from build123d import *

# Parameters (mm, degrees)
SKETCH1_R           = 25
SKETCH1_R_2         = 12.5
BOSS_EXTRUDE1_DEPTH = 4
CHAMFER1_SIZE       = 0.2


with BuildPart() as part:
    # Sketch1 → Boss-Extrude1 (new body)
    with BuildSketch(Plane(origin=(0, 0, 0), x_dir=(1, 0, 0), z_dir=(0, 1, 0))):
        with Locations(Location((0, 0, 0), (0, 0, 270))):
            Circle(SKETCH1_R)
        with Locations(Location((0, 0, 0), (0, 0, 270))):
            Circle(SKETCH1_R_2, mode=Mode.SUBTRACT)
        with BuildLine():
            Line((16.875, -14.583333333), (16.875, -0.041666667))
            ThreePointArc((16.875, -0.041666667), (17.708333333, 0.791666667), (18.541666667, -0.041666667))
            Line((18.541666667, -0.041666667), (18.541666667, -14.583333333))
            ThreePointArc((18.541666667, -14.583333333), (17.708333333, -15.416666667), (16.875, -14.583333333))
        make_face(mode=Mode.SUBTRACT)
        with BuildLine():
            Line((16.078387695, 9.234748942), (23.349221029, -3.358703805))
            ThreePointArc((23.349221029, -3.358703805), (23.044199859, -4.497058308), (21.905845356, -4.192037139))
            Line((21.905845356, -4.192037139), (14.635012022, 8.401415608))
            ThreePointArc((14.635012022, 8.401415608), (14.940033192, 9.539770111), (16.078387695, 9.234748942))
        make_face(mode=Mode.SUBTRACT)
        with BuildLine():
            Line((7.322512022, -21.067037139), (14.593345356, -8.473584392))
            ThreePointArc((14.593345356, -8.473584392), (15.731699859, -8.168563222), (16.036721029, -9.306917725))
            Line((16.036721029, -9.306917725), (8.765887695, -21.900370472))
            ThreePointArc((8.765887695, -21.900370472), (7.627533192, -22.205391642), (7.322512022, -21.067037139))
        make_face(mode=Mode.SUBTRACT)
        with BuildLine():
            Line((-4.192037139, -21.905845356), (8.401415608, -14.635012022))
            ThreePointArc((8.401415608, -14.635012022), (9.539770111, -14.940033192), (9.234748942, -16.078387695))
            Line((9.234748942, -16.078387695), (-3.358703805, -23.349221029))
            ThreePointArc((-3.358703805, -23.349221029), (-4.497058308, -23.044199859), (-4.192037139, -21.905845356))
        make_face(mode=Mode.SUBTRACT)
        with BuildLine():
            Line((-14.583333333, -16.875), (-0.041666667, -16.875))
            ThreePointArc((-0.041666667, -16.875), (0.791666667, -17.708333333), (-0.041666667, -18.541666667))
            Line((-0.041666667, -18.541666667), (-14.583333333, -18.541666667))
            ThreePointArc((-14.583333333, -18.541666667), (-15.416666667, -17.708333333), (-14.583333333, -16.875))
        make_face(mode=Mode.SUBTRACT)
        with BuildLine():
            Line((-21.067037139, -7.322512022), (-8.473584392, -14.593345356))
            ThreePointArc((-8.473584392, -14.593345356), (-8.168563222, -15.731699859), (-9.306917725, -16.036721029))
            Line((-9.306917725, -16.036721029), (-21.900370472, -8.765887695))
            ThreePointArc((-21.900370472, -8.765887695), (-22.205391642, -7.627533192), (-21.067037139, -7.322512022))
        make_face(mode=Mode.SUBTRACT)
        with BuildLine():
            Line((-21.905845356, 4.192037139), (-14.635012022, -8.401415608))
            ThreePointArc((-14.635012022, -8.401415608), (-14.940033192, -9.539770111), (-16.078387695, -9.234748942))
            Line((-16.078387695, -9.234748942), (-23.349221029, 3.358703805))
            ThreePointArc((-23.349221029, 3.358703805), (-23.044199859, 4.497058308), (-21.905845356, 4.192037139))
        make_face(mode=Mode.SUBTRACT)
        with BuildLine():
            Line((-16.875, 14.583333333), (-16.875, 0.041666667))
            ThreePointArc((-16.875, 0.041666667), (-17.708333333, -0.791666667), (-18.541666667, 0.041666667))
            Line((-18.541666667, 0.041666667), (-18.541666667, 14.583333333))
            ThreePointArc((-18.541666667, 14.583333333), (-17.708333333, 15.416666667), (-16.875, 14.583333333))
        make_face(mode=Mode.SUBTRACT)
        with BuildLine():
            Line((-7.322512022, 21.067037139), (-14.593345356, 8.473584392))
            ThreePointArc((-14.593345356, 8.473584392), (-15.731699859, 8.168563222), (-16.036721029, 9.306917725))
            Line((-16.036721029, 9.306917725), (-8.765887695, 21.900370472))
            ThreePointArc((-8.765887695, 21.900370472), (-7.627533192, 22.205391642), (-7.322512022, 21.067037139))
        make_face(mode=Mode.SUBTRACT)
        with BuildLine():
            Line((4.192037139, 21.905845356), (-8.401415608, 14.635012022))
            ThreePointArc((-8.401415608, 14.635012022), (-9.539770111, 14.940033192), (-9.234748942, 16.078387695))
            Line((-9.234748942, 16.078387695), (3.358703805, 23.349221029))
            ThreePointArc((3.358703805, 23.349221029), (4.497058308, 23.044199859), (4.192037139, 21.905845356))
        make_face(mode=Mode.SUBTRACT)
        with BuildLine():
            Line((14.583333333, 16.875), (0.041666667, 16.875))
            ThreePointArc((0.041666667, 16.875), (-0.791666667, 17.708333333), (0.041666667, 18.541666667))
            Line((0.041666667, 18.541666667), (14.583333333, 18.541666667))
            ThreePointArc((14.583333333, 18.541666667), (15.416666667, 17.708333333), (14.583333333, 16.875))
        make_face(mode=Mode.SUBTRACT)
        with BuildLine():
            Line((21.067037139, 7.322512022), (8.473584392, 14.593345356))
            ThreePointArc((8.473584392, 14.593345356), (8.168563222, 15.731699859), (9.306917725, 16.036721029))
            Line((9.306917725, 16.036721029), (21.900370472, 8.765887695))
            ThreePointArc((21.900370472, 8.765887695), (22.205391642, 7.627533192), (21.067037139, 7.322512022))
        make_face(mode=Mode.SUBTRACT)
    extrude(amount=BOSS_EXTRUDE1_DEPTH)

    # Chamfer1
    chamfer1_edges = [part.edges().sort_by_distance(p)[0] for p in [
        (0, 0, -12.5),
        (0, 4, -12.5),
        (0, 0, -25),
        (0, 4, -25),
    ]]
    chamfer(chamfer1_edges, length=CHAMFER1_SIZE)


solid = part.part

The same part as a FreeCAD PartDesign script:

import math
import FreeCAD as App
import Part
import Sketcher

V = App.Vector
Q = App.Units.Quantity


def edges_at(feature, points):
    """Names of the edges that pass closest to the given points."""
    edges = feature.Shape.Edges
    near = lambda p: min(range(len(edges)), key=lambda i: edges[i].distToShape(Part.Vertex(*p))[0])
    return sorted({f"Edge{near(p) + 1}" for p in points})

doc = App.newDocument("Part")
body = doc.addObject("PartDesign::Body", "Body")

# Sketch on XZ plane
sketch1 = doc.addObject("Sketcher::SketchObject", "Sketch")
body.addObject(sketch1)
sketch1.AttachmentSupport = (doc.XZ_Plane, [""])
sketch1.MapMode = "FlatFace"
sketch1.addGeometry([
    Part.Circle(V(0, 0, 0), V(0, 0, 1), 25),  # 0
    Part.ArcOfCircle(Part.Circle(V(-17.7, -14.6, 0), V(0, 0, 1), 0.8), math.radians(180), math.radians(360)),  # 1
    Part.LineSegment(V(-16.9, -14.6, 0), V(-16.9, 0, 0)),  # 2
    Part.ArcOfCircle(Part.Circle(V(-17.7, 0, 0), V(0, 0, 1), 0.8), math.radians(0), math.radians(180)),  # 3
    Part.LineSegment(V(-18.5, 0, 0), V(-18.5, -14.6, 0)),  # 4
    Part.ArcOfCircle(Part.Circle(V(-8, -21.5, 0), V(0, 0, 1), 0.8), math.radians(-150), math.radians(30)),  # 5
    Part.LineSegment(V(-7.3, -21.1, 0), V(-14.6, -8.5, 0)),  # 6
    Part.ArcOfCircle(Part.Circle(V(-15.3, -8.9, 0), V(0, 0, 1), 0.8), math.radians(30), math.radians(210)),  # 7
    Part.LineSegment(V(-16, -9.3, 0), V(-8.8, -21.9, 0)),  # 8
    Part.ArcOfCircle(Part.Circle(V(3.8, -22.6, 0), V(0, 0, 1), 0.8), math.radians(-120), math.radians(60)),  # 9
    Part.LineSegment(V(4.2, -21.9, 0), V(-8.4, -14.6, 0)),  # 10
    Part.ArcOfCircle(Part.Circle(V(-8.8, -15.4, 0), V(0, 0, 1), 0.8), math.radians(60), math.radians(240)),  # 11
    Part.LineSegment(V(-9.2, -16.1, 0), V(3.4, -23.3, 0)),  # 12
    Part.ArcOfCircle(Part.Circle(V(-22.6, -3.8, 0), V(0, 0, 1), 0.8), math.radians(150), math.radians(330)),  # 13
    Part.LineSegment(V(-21.9, -4.2, 0), V(-14.6, 8.4, 0)),  # 14
    Part.ArcOfCircle(Part.Circle(V(-15.4, 8.8, 0), V(0, 0, 1), 0.8), math.radians(-30), math.radians(150)),  # 15
    Part.LineSegment(V(-16.1, 9.2, 0), V(-23.3, -3.4, 0)),  # 16
    Part.ArcOfCircle(Part.Circle(V(-21.5, 8, 0), V(0, 0, 1), 0.8), math.radians(120), math.radians(300)),  # 17
    Part.LineSegment(V(-21.1, 7.3, 0), V(-8.5, 14.6, 0)),  # 18
    Part.ArcOfCircle(Part.Circle(V(-8.9, 15.3, 0), V(0, 0, 1), 0.8), math.radians(-60), math.radians(120)),  # 19
    Part.LineSegment(V(-9.3, 16, 0), V(-21.9, 8.8, 0)),  # 20
    Part.Circle(V(0, 0, 0), V(0, 0, 1), 12.5),  # 21
    Part.ArcOfCircle(Part.Circle(V(-14.6, 17.7, 0), V(0, 0, 1), 0.8), math.radians(90), math.radians(270)),  # 22
    Part.LineSegment(V(-14.6, 16.9, 0), V(0, 16.9, 0)),  # 23
    Part.ArcOfCircle(Part.Circle(V(0, 17.7, 0), V(0, 0, 1), 0.8), math.radians(-90), math.radians(90)),  # 24
    Part.LineSegment(V(0, 18.5, 0), V(-14.6, 18.5, 0)),  # 25
    Part.ArcOfCircle(Part.Circle(V(14.6, -17.7, 0), V(0, 0, 1), 0.8), math.radians(-90), math.radians(90)),  # 26
    Part.LineSegment(V(14.6, -16.9, 0), V(0, -16.9, 0)),  # 27
    Part.ArcOfCircle(Part.Circle(V(0, -17.7, 0), V(0, 0, 1), 0.8), math.radians(90), math.radians(270)),  # 28
    Part.LineSegment(V(0, -18.5, 0), V(14.6, -18.5, 0)),  # 29
    Part.ArcOfCircle(Part.Circle(V(21.5, -8, 0), V(0, 0, 1), 0.8), math.radians(-60), math.radians(120)),  # 30
    Part.LineSegment(V(21.1, -7.3, 0), V(8.5, -14.6, 0)),  # 31
    Part.ArcOfCircle(Part.Circle(V(8.9, -15.3, 0), V(0, 0, 1), 0.8), math.radians(120), math.radians(300)),  # 32
    Part.LineSegment(V(9.3, -16, 0), V(21.9, -8.8, 0)),  # 33
    Part.ArcOfCircle(Part.Circle(V(15.4, -8.8, 0), V(0, 0, 1), 0.8), math.radians(150), math.radians(330)),  # 34
    Part.LineSegment(V(16.1, -9.2, 0), V(23.3, 3.4, 0)),  # 35
    Part.ArcOfCircle(Part.Circle(V(22.6, 3.8, 0), V(0, 0, 1), 0.8), math.radians(-30), math.radians(150)),  # 36
    Part.LineSegment(V(21.9, 4.2, 0), V(14.6, -8.4, 0)),  # 37
    Part.ArcOfCircle(Part.Circle(V(-3.8, 22.6, 0), V(0, 0, 1), 0.8), math.radians(60), math.radians(240)),  # 38
    Part.LineSegment(V(-4.2, 21.9, 0), V(8.4, 14.6, 0)),  # 39
    Part.ArcOfCircle(Part.Circle(V(8.8, 15.4, 0), V(0, 0, 1), 0.8), math.radians(-120), math.radians(60)),  # 40
    Part.LineSegment(V(9.2, 16.1, 0), V(-3.4, 23.3, 0)),  # 41
    Part.ArcOfCircle(Part.Circle(V(8, 21.5, 0), V(0, 0, 1), 0.8), math.radians(30), math.radians(210)),  # 42
    Part.LineSegment(V(7.3, 21.1, 0), V(14.6, 8.5, 0)),  # 43
    Part.ArcOfCircle(Part.Circle(V(15.3, 8.9, 0), V(0, 0, 1), 0.8), math.radians(-150), math.radians(30)),  # 44
    Part.LineSegment(V(16, 9.3, 0), V(8.8, 21.9, 0)),  # 45
    Part.ArcOfCircle(Part.Circle(V(17.7, 14.6, 0), V(0, 0, 1), 0.8), math.radians(0), math.radians(180)),  # 46
    Part.LineSegment(V(16.9, 14.6, 0), V(16.9, 0, 0)),  # 47
    Part.ArcOfCircle(Part.Circle(V(17.7, 0, 0), V(0, 0, 1), 0.8), math.radians(180), math.radians(360)),  # 48
    Part.LineSegment(V(18.5, 0, 0), V(18.5, 14.6, 0)),  # 49
], False)
sketch1.addConstraint([
    Sketcher.Constraint("Tangent", 1, 2, 2, 1),
    Sketcher.Constraint("Tangent", 2, 2, 3, 1),
    Sketcher.Constraint("Tangent", 3, 2, 4, 1),
    Sketcher.Constraint("Tangent", 4, 2, 1, 1),
    Sketcher.Constraint("Tangent", 5, 2, 6, 1),
    Sketcher.Constraint("Tangent", 6, 2, 7, 1),
    Sketcher.Constraint("Tangent", 7, 2, 8, 1),
    Sketcher.Constraint("Tangent", 8, 2, 5, 1),
    Sketcher.Constraint("Tangent", 9, 2, 10, 1),
    Sketcher.Constraint("Tangent", 10, 2, 11, 1),
    Sketcher.Constraint("Tangent", 11, 2, 12, 1),
    Sketcher.Constraint("Tangent", 12, 2, 9, 1),
    Sketcher.Constraint("Tangent", 13, 2, 14, 1),
    Sketcher.Constraint("Tangent", 14, 2, 15, 1),
    Sketcher.Constraint("Tangent", 15, 2, 16, 1),
    Sketcher.Constraint("Tangent", 16, 2, 13, 1),
    Sketcher.Constraint("Tangent", 17, 2, 18, 1),
    Sketcher.Constraint("Tangent", 18, 2, 19, 1),
    Sketcher.Constraint("Tangent", 19, 2, 20, 1),
    Sketcher.Constraint("Tangent", 20, 2, 17, 1),
    Sketcher.Constraint("Tangent", 22, 2, 23, 1),
    Sketcher.Constraint("Tangent", 23, 2, 24, 1),
    Sketcher.Constraint("Tangent", 24, 2, 25, 1),
    Sketcher.Constraint("Tangent", 25, 2, 22, 1),
    Sketcher.Constraint("Tangent", 26, 2, 27, 1),
    Sketcher.Constraint("Tangent", 27, 2, 28, 1),
    Sketcher.Constraint("Tangent", 28, 2, 29, 1),
    Sketcher.Constraint("Tangent", 29, 2, 26, 1),
    Sketcher.Constraint("Tangent", 30, 2, 31, 1),
    Sketcher.Constraint("Tangent", 31, 2, 32, 1),
    Sketcher.Constraint("Tangent", 32, 2, 33, 1),
    Sketcher.Constraint("Tangent", 33, 2, 30, 1),
    Sketcher.Constraint("Tangent", 34, 2, 35, 1),
    Sketcher.Constraint("Tangent", 35, 2, 36, 1),
    Sketcher.Constraint("Tangent", 36, 2, 37, 1),
    Sketcher.Constraint("Tangent", 37, 2, 34, 1),
    Sketcher.Constraint("Tangent", 38, 2, 39, 1),
    Sketcher.Constraint("Tangent", 39, 2, 40, 1),
    Sketcher.Constraint("Tangent", 40, 2, 41, 1),
    Sketcher.Constraint("Tangent", 41, 2, 38, 1),
    Sketcher.Constraint("Tangent", 42, 2, 43, 1),
    Sketcher.Constraint("Tangent", 43, 2, 44, 1),
    Sketcher.Constraint("Tangent", 44, 2, 45, 1),
    Sketcher.Constraint("Tangent", 45, 2, 42, 1),
    Sketcher.Constraint("Tangent", 46, 2, 47, 1),
    Sketcher.Constraint("Tangent", 47, 2, 48, 1),
    Sketcher.Constraint("Tangent", 48, 2, 49, 1),
    Sketcher.Constraint("Tangent", 49, 2, 46, 1),
    Sketcher.Constraint("Vertical", 2),
    Sketcher.Constraint("Vertical", 4),
    Sketcher.Constraint("Horizontal", 23),
    Sketcher.Constraint("Horizontal", 25),
    Sketcher.Constraint("Horizontal", 27),
    Sketcher.Constraint("Horizontal", 29),
    Sketcher.Constraint("Vertical", 47),
    Sketcher.Constraint("Vertical", 49),
    Sketcher.Constraint("Coincident", 0, 3, -1, 1),
    Sketcher.Constraint("Coincident", 21, 3, -1, 1),
    Sketcher.Constraint("Equal", 3, 5),
    Sketcher.Constraint("Equal", 5, 7),
    Sketcher.Constraint("Equal", 7, 9),
    Sketcher.Constraint("Equal", 9, 11),
    Sketcher.Constraint("Equal", 11, 13),
    Sketcher.Constraint("Equal", 13, 15),
    Sketcher.Constraint("Equal", 15, 17),
    Sketcher.Constraint("Equal", 17, 19),
    Sketcher.Constraint("Equal", 19, 22),
    Sketcher.Constraint("Equal", 24, 26),
    Sketcher.Constraint("Equal", 28, 30),
    Sketcher.Constraint("Equal", 30, 32),
    Sketcher.Constraint("Equal", 32, 34),
    Sketcher.Constraint("Equal", 34, 36),
    Sketcher.Constraint("Equal", 36, 38),
    Sketcher.Constraint("Equal", 38, 40),
    Sketcher.Constraint("Equal", 40, 42),
    Sketcher.Constraint("Equal", 42, 44),
    Sketcher.Constraint("Equal", 44, 46),
    Sketcher.Constraint("Symmetric", 22, 3, 26, 3, -1, 1),
    Sketcher.Constraint("Symmetric", 17, 3, 30, 3, -1, 1),
    Sketcher.Constraint("Symmetric", 19, 3, 32, 3, -1, 1),
    Sketcher.Constraint("Symmetric", 15, 3, 34, 3, -1, 1),
    Sketcher.Constraint("Symmetric", 13, 3, 36, 3, -1, 1),
    Sketcher.Constraint("Symmetric", 9, 3, 38, 3, -1, 1),
    Sketcher.Constraint("Symmetric", 11, 3, 40, 3, -1, 1),
    Sketcher.Constraint("Symmetric", 5, 3, 42, 3, -1, 1),
    Sketcher.Constraint("Symmetric", 7, 3, 44, 3, -1, 1),
    Sketcher.Constraint("Symmetric", 1, 3, 46, 3, -1, 1),
    Sketcher.Constraint("Perpendicular", 12, 14),
    Sketcher.Constraint("Perpendicular", 8, 18),
    Sketcher.Constraint("Equal", 25, 27),
    Sketcher.Constraint("Equal", 29, 2),
    Sketcher.Constraint("Equal", 4, 47),
    Sketcher.Constraint("Equal", 8, 10),
    Sketcher.Constraint("Equal", 12, 14),
    Sketcher.Constraint("Equal", 16, 18),
    Sketcher.Constraint("Diameter", 0, 50.0),
    Sketcher.Constraint("Diameter", 21, 25.0),
    Sketcher.Constraint("Angle", 6, Q("120 deg")),
    Sketcher.Constraint("Angle", 10, Q("150 deg")),
    Sketcher.Constraint("DistanceX", 1, 2, -1, 1, 16.875),
    Sketcher.Constraint("DistanceY", -1, 1, 22, 2, 16.875),
    Sketcher.Constraint("Radius", 1, 0.833333),
    Sketcher.Constraint("DistanceX", 5, 3, -1, 1, 8.0442),
    Sketcher.Constraint("DistanceY", 11, 3, -1, 1, 15.3567),
    Sketcher.Constraint("DistanceX", 15, 3, -1, 1, 15.3567),
    Sketcher.Constraint("DistanceY", -1, 1, 17, 3, 8.0442),
    Sketcher.Constraint("DistanceX", 23, 1, 23, 2, 14.541667),
    Sketcher.Constraint("DistanceY", 7, 3, -1, 1, 8.890251),
    Sketcher.Constraint("DistanceX", -1, 1, 9, 3, 3.77537),
    Sketcher.Constraint("DistanceY", 13, 3, -1, 1, 3.77537),
    Sketcher.Constraint("DistanceX", 19, 3, -1, 1, 8.890251),
    Sketcher.Constraint("DistanceX", 7, 2, -1, 1, 16.036721),
    Sketcher.Constraint("DistanceY", 1, 3, -1, 1, 14.583333),
    Sketcher.Constraint("DistanceX", 22, 3, -1, 1, 14.583333),
])
pad1 = doc.addObject("PartDesign::Pad", "Pad")
body.addObject(pad1)
pad1.Profile = sketch1
pad1.Length = 4
pad1.Reversed = True
doc.recompute()

chamfer = doc.addObject("PartDesign::Chamfer", "Chamfer")
body.addObject(chamfer)
chamfer.Base = (pad1, edges_at(pad1, [
    (0, 0, -12.5),
    (0, 4, -12.5),
    (0, 0, -25),
    (0, 4, -25),
]))
chamfer.Size = 0.2

doc.recompute()
